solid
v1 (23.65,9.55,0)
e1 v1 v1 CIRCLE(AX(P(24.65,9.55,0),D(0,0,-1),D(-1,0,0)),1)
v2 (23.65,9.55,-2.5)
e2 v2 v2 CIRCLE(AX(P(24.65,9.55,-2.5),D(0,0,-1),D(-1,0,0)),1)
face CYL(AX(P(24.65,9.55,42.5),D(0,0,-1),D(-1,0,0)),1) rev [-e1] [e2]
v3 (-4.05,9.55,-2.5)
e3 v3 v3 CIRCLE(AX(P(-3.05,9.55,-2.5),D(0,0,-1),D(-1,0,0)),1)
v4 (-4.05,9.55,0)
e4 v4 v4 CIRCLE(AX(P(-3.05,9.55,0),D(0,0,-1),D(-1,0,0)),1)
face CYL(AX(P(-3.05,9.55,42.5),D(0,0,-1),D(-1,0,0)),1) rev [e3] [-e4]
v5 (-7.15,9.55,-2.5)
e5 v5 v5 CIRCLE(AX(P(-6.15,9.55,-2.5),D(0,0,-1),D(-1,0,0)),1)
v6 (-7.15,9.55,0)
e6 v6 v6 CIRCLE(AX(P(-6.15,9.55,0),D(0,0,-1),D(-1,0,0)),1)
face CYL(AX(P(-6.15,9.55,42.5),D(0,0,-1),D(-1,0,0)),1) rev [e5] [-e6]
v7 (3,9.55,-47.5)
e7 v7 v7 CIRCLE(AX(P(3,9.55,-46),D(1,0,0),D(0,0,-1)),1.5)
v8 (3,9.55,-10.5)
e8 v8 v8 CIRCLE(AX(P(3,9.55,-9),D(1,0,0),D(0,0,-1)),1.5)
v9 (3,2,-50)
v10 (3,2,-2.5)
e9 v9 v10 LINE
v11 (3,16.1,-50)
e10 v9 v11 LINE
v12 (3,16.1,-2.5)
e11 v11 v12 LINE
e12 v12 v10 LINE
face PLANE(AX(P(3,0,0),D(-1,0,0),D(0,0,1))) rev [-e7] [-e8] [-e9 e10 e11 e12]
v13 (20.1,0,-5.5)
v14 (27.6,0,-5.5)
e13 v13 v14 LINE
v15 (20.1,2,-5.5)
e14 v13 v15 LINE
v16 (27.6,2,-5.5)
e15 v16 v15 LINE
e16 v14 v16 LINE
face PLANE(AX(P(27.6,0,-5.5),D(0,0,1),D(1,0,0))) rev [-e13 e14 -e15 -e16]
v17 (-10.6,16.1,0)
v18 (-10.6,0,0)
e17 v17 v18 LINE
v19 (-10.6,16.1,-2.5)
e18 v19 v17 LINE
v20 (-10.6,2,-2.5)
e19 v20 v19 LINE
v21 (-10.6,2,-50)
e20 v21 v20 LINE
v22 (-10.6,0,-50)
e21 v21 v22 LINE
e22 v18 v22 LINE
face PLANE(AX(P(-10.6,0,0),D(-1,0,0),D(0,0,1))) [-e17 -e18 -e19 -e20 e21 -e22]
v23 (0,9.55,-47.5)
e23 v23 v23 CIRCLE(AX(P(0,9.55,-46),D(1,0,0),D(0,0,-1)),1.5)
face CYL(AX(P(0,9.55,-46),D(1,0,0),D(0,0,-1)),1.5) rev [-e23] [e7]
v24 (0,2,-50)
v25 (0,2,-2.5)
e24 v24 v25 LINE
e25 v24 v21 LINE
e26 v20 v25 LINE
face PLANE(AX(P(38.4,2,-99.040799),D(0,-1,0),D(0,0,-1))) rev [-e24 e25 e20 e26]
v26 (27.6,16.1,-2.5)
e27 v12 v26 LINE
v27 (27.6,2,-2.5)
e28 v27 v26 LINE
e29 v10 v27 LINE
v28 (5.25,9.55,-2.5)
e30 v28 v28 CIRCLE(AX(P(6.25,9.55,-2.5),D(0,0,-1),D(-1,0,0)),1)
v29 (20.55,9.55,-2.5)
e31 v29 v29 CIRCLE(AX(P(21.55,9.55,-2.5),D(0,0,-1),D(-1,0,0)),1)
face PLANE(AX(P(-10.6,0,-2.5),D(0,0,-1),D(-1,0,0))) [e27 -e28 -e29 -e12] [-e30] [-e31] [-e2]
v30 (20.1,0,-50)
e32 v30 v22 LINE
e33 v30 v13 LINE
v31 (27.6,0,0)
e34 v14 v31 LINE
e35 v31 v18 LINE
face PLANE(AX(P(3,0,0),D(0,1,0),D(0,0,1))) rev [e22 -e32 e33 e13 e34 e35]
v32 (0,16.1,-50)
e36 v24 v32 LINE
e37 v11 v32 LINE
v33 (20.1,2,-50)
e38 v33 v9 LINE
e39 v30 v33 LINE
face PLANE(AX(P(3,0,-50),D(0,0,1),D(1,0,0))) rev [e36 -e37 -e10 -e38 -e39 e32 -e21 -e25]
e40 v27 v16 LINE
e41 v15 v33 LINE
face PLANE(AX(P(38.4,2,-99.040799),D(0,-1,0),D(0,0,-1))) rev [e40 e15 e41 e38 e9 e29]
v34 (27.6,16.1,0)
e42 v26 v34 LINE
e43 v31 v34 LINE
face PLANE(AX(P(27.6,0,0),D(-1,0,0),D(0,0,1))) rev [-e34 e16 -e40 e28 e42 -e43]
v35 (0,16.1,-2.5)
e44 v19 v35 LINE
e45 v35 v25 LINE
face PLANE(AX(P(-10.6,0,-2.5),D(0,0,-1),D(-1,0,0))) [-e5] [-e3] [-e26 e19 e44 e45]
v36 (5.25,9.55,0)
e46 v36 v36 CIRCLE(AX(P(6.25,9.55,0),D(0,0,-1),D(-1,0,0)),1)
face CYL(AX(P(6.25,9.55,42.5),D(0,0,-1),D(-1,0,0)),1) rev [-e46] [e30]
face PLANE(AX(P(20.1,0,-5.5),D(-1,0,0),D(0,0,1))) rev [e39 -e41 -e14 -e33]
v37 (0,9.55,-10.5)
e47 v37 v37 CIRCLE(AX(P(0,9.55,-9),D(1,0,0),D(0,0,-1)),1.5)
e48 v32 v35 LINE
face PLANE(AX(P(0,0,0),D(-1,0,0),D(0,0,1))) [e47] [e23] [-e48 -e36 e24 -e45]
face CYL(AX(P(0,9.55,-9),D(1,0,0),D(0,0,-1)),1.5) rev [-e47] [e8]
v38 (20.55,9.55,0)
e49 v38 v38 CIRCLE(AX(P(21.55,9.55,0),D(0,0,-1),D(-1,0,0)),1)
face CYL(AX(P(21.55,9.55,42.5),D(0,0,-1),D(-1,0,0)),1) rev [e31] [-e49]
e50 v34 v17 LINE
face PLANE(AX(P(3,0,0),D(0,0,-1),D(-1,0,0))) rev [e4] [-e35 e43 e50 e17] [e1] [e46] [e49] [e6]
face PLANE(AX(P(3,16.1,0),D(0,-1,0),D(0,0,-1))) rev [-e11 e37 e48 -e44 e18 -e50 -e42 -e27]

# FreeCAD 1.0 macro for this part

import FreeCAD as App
import Part
import Sketcher

V = App.Vector
Q = App.Units.Quantity


def add_polygon(sketch, points):
    """Adds a closed chain of lines whose ends are joined by coincident constraints."""
    first, n = sketch.GeometryCount, len(points)
    for a, b in zip(points, points[1:] + points[:1]):
        sketch.addGeometry(Part.LineSegment(App.Vector(*a, 0), App.Vector(*b, 0)), False)
    for i in range(n):
        sketch.addConstraint(Sketcher.Constraint("Coincident", first + i, 2, first + (i + 1) % n, 1))

doc = App.newDocument("Part")
body = doc.addObject("PartDesign::Body", "Body")

# Sketch on YZ plane
sketch1 = body.newObject("Sketcher::SketchObject", "Sketch")
sketch1.AttachmentSupport = (doc.getObject("YZ_Plane"), [""])
sketch1.MapMode = "FlatFace"
add_polygon(sketch1, [(16, 0), (0, 0), (0, -50), (16, -50)])  # lines 0-3
sketch1.addConstraint([
    Sketcher.Constraint("Horizontal", 0),
    Sketcher.Constraint("Vertical", 1),
    Sketcher.Constraint("Horizontal", 2),
    Sketcher.Constraint("Vertical", 3),
    Sketcher.Constraint("Coincident", 0, 2, -1, 1),
    Sketcher.Constraint("DistanceY", 1, 2, 1, 1, Q("50 mm")),
    Sketcher.Constraint("DistanceX", 0, 2, 0, 1, Q("16.1 mm")),
])
pad1 = body.newObject("PartDesign::Pad", "Pad")
pad1.Profile = sketch1
pad1.Length = 3

# Sketch on YZ plane
sketch2 = body.newObject("Sketcher::SketchObject", "Sketch001")
sketch2.AttachmentSupport = (doc.getObject("YZ_Plane"), [""])
sketch2.MapMode = "FlatFace"
sketch2.AttachmentOffset = App.Placement(V(0, 0, 3), App.Rotation())
sketch2.addGeometry([
    Part.Circle(V(9.6, -46, 0), V(0, 0, 1), 1.5),
    Part.Circle(V(9.6, -9, 0), V(0, 0, 1), 1.5),
], False)
sketch2.addConstraint([
    Sketcher.Constraint("Equal", 0, 1),
    Sketcher.Constraint("Vertical", 0, 3, 1, 3),
    Sketcher.Constraint("Diameter", 0, Q("3 mm")),
    Sketcher.Constraint("DistanceY", 0, 3, -1, 1, Q("46 mm")),
    Sketcher.Constraint("DistanceY", 1, 3, -1, 1, Q("9 mm")),
    Sketcher.Constraint("DistanceX", -1, 1, 0, 3, Q("9.55 mm")),
])
pocket1 = body.newObject("PartDesign::Pocket", "Pocket")
pocket1.Profile = sketch2
pocket1.Type = "ThroughAll"

# Sketch on YZ plane
sketch3 = body.newObject("Sketcher::SketchObject", "Sketch002")
sketch3.AttachmentSupport = (doc.getObject("YZ_Plane"), [""])
sketch3.MapMode = "FlatFace"
sketch3.AttachmentOffset = App.Placement(V(0, 0, 3), App.Rotation())
add_polygon(sketch3, [(16.1, 0), (0, 0), (0, -2.5), (16.1, -2.5)])  # lines 0-3
sketch3.addConstraint([
    Sketcher.Constraint("Horizontal", 0),
    Sketcher.Constraint("Vertical", 1),
    Sketcher.Constraint("Horizontal", 2),
    Sketcher.Constraint("Vertical", 3),
    Sketcher.Constraint("Coincident", 0, 2, -1, 1),
    Sketcher.Constraint("DistanceX", 0, 2, 0, 1, Q("16.1 mm")),
    Sketcher.Constraint("DistanceY", 1, 2, 1, 1, Q("2.5 mm")),
])
pad2 = body.newObject("PartDesign::Pad", "Pad001")
pad2.Profile = sketch3
pad2.Type = "TwoLengths"
pad2.Length = 35.4
pad2.Length2 = 13.6

# Sketch on XY plane
sketch4 = body.newObject("Sketcher::SketchObject", "Sketch003")
sketch4.AttachmentSupport = (doc.getObject("XY_Plane"), [""])
sketch4.MapMode = "FlatFace"
sketch4.AttachmentOffset = App.Placement(V(0, 0, -2.5), App.Rotation())
sketch4.addGeometry([
    Part.Circle(V(-6.2, 9.6, 0), V(0, 0, 1), 1),  # 0
    Part.Circle(V(-3, 9.6, 0), V(0, 0, 1), 1),  # 1
    Part.Circle(V(6.2, 9.6, 0), V(0, 0, 1), 1),  # 2
    Part.Circle(V(21.6, 9.6, 0), V(0, 0, 1), 1),  # 3
    Part.Circle(V(24.6, 9.6, 0), V(0, 0, 1), 1),  # 4
], False)
sketch4.addConstraint([
    Sketcher.Constraint("Equal", 0, 1),
    Sketcher.Constraint("Equal", 1, 2),
    Sketcher.Constraint("Equal", 2, 3),
    Sketcher.Constraint("Equal", 3, 4),
    Sketcher.Constraint("Horizontal", 0, 3, 1, 3),
    Sketcher.Constraint("Horizontal", 1, 3, 2, 3),
    Sketcher.Constraint("Horizontal", 2, 3, 3, 3),
    Sketcher.Constraint("Horizontal", 3, 3, 4, 3),
    Sketcher.Constraint("Diameter", 0, Q("2 mm")),
    Sketcher.Constraint("DistanceX", 0, 3, 1, 3, Q("3.1 mm")),
    Sketcher.Constraint("DistanceX", 1, 3, 2, 3, Q("9.3 mm")),
    Sketcher.Constraint("DistanceX", 2, 3, 3, 3, Q("15.3 mm")),
    Sketcher.Constraint("DistanceX", 3, 3, 4, 3, Q("3.1 mm")),
    Sketcher.Constraint("DistanceX", 0, 3, -1, 1, Q("6.15 mm")),
    Sketcher.Constraint("DistanceY", -1, 1, 0, 3, Q("9.55 mm")),
])
pocket2 = body.newObject("PartDesign::Pocket", "Pocket001")
pocket2.Profile = sketch4
pocket2.Length = 45
pocket2.Reversed = True

# Sketch on XY plane
sketch5 = body.newObject("Sketcher::SketchObject", "Sketch004")
sketch5.AttachmentSupport = (doc.getObject("XY_Plane"), [""])
sketch5.MapMode = "FlatFace"
sketch5.AttachmentOffset = App.Placement(V(0, 0, -2.5), App.Rotation())
add_polygon(sketch5, [(38.4, 2), (38.4, 0), (-10.6, 0), (-10.6, 2)])  # lines 0-3
sketch5.addConstraint([
    Sketcher.Constraint("Vertical", 0),
    Sketcher.Constraint("Horizontal", 1),
    Sketcher.Constraint("Vertical", 2),
    Sketcher.Constraint("Horizontal", 3),
    Sketcher.Constraint("PointOnObject", 0, 2, -1),
    Sketcher.Constraint("DistanceX", 1, 2, 1, 1, Q("49 mm")),
    Sketcher.Constraint("DistanceY", 0, 2, 0, 1, Q("2 mm")),
    Sketcher.Constraint("DistanceX", -1, 1, 0, 2, Q("38.4 mm")),
])
pad3 = body.newObject("PartDesign::Pad", "Pad002")
pad3.Profile = sketch5
pad3.Length = 47.5
pad3.Reversed = True

# Sketch on XZ plane
sketch6 = body.newObject("Sketcher::SketchObject", "Sketch005")
sketch6.AttachmentSupport = (doc.getObject("XZ_Plane"), [""])
sketch6.MapMode = "FlatFace"
sketch6.AttachmentOffset = App.Placement(V(0, 0, -2), App.Rotation())
add_polygon(sketch6, [(20, -50), (20, -6), (28, -6), (28, 0), (38, 0), (38, -50)])  # lines 0-5
sketch6.addConstraint([
    Sketcher.Constraint("Vertical", 0),
    Sketcher.Constraint("Horizontal", 1),
    Sketcher.Constraint("Vertical", 2),
    Sketcher.Constraint("Horizontal", 3),
    Sketcher.Constraint("Vertical", 4),
    Sketcher.Constraint("Horizontal", 5),
    Sketcher.Constraint("PointOnObject", 2, 2, -1),
    Sketcher.Constraint("DistanceY", 4, 2, 4, 1, Q("50 mm")),
    Sketcher.Constraint("DistanceX", 1, 1, 1, 2, Q("7.5 mm")),
    Sketcher.Constraint("DistanceX", 3, 1, 3, 2, Q("10.8 mm")),
    Sketcher.Constraint("DistanceY", 0, 1, 0, 2, Q("44.5 mm")),
    Sketcher.Constraint("DistanceX", -1, 1, 0, 2, Q("20.1 mm")),
])
pocket3 = body.newObject("PartDesign::Pocket", "Pocket002")
pocket3.Profile = sketch6
pocket3.Type = "ThroughAll"
pocket3.Midplane = True

doc.recompute()
